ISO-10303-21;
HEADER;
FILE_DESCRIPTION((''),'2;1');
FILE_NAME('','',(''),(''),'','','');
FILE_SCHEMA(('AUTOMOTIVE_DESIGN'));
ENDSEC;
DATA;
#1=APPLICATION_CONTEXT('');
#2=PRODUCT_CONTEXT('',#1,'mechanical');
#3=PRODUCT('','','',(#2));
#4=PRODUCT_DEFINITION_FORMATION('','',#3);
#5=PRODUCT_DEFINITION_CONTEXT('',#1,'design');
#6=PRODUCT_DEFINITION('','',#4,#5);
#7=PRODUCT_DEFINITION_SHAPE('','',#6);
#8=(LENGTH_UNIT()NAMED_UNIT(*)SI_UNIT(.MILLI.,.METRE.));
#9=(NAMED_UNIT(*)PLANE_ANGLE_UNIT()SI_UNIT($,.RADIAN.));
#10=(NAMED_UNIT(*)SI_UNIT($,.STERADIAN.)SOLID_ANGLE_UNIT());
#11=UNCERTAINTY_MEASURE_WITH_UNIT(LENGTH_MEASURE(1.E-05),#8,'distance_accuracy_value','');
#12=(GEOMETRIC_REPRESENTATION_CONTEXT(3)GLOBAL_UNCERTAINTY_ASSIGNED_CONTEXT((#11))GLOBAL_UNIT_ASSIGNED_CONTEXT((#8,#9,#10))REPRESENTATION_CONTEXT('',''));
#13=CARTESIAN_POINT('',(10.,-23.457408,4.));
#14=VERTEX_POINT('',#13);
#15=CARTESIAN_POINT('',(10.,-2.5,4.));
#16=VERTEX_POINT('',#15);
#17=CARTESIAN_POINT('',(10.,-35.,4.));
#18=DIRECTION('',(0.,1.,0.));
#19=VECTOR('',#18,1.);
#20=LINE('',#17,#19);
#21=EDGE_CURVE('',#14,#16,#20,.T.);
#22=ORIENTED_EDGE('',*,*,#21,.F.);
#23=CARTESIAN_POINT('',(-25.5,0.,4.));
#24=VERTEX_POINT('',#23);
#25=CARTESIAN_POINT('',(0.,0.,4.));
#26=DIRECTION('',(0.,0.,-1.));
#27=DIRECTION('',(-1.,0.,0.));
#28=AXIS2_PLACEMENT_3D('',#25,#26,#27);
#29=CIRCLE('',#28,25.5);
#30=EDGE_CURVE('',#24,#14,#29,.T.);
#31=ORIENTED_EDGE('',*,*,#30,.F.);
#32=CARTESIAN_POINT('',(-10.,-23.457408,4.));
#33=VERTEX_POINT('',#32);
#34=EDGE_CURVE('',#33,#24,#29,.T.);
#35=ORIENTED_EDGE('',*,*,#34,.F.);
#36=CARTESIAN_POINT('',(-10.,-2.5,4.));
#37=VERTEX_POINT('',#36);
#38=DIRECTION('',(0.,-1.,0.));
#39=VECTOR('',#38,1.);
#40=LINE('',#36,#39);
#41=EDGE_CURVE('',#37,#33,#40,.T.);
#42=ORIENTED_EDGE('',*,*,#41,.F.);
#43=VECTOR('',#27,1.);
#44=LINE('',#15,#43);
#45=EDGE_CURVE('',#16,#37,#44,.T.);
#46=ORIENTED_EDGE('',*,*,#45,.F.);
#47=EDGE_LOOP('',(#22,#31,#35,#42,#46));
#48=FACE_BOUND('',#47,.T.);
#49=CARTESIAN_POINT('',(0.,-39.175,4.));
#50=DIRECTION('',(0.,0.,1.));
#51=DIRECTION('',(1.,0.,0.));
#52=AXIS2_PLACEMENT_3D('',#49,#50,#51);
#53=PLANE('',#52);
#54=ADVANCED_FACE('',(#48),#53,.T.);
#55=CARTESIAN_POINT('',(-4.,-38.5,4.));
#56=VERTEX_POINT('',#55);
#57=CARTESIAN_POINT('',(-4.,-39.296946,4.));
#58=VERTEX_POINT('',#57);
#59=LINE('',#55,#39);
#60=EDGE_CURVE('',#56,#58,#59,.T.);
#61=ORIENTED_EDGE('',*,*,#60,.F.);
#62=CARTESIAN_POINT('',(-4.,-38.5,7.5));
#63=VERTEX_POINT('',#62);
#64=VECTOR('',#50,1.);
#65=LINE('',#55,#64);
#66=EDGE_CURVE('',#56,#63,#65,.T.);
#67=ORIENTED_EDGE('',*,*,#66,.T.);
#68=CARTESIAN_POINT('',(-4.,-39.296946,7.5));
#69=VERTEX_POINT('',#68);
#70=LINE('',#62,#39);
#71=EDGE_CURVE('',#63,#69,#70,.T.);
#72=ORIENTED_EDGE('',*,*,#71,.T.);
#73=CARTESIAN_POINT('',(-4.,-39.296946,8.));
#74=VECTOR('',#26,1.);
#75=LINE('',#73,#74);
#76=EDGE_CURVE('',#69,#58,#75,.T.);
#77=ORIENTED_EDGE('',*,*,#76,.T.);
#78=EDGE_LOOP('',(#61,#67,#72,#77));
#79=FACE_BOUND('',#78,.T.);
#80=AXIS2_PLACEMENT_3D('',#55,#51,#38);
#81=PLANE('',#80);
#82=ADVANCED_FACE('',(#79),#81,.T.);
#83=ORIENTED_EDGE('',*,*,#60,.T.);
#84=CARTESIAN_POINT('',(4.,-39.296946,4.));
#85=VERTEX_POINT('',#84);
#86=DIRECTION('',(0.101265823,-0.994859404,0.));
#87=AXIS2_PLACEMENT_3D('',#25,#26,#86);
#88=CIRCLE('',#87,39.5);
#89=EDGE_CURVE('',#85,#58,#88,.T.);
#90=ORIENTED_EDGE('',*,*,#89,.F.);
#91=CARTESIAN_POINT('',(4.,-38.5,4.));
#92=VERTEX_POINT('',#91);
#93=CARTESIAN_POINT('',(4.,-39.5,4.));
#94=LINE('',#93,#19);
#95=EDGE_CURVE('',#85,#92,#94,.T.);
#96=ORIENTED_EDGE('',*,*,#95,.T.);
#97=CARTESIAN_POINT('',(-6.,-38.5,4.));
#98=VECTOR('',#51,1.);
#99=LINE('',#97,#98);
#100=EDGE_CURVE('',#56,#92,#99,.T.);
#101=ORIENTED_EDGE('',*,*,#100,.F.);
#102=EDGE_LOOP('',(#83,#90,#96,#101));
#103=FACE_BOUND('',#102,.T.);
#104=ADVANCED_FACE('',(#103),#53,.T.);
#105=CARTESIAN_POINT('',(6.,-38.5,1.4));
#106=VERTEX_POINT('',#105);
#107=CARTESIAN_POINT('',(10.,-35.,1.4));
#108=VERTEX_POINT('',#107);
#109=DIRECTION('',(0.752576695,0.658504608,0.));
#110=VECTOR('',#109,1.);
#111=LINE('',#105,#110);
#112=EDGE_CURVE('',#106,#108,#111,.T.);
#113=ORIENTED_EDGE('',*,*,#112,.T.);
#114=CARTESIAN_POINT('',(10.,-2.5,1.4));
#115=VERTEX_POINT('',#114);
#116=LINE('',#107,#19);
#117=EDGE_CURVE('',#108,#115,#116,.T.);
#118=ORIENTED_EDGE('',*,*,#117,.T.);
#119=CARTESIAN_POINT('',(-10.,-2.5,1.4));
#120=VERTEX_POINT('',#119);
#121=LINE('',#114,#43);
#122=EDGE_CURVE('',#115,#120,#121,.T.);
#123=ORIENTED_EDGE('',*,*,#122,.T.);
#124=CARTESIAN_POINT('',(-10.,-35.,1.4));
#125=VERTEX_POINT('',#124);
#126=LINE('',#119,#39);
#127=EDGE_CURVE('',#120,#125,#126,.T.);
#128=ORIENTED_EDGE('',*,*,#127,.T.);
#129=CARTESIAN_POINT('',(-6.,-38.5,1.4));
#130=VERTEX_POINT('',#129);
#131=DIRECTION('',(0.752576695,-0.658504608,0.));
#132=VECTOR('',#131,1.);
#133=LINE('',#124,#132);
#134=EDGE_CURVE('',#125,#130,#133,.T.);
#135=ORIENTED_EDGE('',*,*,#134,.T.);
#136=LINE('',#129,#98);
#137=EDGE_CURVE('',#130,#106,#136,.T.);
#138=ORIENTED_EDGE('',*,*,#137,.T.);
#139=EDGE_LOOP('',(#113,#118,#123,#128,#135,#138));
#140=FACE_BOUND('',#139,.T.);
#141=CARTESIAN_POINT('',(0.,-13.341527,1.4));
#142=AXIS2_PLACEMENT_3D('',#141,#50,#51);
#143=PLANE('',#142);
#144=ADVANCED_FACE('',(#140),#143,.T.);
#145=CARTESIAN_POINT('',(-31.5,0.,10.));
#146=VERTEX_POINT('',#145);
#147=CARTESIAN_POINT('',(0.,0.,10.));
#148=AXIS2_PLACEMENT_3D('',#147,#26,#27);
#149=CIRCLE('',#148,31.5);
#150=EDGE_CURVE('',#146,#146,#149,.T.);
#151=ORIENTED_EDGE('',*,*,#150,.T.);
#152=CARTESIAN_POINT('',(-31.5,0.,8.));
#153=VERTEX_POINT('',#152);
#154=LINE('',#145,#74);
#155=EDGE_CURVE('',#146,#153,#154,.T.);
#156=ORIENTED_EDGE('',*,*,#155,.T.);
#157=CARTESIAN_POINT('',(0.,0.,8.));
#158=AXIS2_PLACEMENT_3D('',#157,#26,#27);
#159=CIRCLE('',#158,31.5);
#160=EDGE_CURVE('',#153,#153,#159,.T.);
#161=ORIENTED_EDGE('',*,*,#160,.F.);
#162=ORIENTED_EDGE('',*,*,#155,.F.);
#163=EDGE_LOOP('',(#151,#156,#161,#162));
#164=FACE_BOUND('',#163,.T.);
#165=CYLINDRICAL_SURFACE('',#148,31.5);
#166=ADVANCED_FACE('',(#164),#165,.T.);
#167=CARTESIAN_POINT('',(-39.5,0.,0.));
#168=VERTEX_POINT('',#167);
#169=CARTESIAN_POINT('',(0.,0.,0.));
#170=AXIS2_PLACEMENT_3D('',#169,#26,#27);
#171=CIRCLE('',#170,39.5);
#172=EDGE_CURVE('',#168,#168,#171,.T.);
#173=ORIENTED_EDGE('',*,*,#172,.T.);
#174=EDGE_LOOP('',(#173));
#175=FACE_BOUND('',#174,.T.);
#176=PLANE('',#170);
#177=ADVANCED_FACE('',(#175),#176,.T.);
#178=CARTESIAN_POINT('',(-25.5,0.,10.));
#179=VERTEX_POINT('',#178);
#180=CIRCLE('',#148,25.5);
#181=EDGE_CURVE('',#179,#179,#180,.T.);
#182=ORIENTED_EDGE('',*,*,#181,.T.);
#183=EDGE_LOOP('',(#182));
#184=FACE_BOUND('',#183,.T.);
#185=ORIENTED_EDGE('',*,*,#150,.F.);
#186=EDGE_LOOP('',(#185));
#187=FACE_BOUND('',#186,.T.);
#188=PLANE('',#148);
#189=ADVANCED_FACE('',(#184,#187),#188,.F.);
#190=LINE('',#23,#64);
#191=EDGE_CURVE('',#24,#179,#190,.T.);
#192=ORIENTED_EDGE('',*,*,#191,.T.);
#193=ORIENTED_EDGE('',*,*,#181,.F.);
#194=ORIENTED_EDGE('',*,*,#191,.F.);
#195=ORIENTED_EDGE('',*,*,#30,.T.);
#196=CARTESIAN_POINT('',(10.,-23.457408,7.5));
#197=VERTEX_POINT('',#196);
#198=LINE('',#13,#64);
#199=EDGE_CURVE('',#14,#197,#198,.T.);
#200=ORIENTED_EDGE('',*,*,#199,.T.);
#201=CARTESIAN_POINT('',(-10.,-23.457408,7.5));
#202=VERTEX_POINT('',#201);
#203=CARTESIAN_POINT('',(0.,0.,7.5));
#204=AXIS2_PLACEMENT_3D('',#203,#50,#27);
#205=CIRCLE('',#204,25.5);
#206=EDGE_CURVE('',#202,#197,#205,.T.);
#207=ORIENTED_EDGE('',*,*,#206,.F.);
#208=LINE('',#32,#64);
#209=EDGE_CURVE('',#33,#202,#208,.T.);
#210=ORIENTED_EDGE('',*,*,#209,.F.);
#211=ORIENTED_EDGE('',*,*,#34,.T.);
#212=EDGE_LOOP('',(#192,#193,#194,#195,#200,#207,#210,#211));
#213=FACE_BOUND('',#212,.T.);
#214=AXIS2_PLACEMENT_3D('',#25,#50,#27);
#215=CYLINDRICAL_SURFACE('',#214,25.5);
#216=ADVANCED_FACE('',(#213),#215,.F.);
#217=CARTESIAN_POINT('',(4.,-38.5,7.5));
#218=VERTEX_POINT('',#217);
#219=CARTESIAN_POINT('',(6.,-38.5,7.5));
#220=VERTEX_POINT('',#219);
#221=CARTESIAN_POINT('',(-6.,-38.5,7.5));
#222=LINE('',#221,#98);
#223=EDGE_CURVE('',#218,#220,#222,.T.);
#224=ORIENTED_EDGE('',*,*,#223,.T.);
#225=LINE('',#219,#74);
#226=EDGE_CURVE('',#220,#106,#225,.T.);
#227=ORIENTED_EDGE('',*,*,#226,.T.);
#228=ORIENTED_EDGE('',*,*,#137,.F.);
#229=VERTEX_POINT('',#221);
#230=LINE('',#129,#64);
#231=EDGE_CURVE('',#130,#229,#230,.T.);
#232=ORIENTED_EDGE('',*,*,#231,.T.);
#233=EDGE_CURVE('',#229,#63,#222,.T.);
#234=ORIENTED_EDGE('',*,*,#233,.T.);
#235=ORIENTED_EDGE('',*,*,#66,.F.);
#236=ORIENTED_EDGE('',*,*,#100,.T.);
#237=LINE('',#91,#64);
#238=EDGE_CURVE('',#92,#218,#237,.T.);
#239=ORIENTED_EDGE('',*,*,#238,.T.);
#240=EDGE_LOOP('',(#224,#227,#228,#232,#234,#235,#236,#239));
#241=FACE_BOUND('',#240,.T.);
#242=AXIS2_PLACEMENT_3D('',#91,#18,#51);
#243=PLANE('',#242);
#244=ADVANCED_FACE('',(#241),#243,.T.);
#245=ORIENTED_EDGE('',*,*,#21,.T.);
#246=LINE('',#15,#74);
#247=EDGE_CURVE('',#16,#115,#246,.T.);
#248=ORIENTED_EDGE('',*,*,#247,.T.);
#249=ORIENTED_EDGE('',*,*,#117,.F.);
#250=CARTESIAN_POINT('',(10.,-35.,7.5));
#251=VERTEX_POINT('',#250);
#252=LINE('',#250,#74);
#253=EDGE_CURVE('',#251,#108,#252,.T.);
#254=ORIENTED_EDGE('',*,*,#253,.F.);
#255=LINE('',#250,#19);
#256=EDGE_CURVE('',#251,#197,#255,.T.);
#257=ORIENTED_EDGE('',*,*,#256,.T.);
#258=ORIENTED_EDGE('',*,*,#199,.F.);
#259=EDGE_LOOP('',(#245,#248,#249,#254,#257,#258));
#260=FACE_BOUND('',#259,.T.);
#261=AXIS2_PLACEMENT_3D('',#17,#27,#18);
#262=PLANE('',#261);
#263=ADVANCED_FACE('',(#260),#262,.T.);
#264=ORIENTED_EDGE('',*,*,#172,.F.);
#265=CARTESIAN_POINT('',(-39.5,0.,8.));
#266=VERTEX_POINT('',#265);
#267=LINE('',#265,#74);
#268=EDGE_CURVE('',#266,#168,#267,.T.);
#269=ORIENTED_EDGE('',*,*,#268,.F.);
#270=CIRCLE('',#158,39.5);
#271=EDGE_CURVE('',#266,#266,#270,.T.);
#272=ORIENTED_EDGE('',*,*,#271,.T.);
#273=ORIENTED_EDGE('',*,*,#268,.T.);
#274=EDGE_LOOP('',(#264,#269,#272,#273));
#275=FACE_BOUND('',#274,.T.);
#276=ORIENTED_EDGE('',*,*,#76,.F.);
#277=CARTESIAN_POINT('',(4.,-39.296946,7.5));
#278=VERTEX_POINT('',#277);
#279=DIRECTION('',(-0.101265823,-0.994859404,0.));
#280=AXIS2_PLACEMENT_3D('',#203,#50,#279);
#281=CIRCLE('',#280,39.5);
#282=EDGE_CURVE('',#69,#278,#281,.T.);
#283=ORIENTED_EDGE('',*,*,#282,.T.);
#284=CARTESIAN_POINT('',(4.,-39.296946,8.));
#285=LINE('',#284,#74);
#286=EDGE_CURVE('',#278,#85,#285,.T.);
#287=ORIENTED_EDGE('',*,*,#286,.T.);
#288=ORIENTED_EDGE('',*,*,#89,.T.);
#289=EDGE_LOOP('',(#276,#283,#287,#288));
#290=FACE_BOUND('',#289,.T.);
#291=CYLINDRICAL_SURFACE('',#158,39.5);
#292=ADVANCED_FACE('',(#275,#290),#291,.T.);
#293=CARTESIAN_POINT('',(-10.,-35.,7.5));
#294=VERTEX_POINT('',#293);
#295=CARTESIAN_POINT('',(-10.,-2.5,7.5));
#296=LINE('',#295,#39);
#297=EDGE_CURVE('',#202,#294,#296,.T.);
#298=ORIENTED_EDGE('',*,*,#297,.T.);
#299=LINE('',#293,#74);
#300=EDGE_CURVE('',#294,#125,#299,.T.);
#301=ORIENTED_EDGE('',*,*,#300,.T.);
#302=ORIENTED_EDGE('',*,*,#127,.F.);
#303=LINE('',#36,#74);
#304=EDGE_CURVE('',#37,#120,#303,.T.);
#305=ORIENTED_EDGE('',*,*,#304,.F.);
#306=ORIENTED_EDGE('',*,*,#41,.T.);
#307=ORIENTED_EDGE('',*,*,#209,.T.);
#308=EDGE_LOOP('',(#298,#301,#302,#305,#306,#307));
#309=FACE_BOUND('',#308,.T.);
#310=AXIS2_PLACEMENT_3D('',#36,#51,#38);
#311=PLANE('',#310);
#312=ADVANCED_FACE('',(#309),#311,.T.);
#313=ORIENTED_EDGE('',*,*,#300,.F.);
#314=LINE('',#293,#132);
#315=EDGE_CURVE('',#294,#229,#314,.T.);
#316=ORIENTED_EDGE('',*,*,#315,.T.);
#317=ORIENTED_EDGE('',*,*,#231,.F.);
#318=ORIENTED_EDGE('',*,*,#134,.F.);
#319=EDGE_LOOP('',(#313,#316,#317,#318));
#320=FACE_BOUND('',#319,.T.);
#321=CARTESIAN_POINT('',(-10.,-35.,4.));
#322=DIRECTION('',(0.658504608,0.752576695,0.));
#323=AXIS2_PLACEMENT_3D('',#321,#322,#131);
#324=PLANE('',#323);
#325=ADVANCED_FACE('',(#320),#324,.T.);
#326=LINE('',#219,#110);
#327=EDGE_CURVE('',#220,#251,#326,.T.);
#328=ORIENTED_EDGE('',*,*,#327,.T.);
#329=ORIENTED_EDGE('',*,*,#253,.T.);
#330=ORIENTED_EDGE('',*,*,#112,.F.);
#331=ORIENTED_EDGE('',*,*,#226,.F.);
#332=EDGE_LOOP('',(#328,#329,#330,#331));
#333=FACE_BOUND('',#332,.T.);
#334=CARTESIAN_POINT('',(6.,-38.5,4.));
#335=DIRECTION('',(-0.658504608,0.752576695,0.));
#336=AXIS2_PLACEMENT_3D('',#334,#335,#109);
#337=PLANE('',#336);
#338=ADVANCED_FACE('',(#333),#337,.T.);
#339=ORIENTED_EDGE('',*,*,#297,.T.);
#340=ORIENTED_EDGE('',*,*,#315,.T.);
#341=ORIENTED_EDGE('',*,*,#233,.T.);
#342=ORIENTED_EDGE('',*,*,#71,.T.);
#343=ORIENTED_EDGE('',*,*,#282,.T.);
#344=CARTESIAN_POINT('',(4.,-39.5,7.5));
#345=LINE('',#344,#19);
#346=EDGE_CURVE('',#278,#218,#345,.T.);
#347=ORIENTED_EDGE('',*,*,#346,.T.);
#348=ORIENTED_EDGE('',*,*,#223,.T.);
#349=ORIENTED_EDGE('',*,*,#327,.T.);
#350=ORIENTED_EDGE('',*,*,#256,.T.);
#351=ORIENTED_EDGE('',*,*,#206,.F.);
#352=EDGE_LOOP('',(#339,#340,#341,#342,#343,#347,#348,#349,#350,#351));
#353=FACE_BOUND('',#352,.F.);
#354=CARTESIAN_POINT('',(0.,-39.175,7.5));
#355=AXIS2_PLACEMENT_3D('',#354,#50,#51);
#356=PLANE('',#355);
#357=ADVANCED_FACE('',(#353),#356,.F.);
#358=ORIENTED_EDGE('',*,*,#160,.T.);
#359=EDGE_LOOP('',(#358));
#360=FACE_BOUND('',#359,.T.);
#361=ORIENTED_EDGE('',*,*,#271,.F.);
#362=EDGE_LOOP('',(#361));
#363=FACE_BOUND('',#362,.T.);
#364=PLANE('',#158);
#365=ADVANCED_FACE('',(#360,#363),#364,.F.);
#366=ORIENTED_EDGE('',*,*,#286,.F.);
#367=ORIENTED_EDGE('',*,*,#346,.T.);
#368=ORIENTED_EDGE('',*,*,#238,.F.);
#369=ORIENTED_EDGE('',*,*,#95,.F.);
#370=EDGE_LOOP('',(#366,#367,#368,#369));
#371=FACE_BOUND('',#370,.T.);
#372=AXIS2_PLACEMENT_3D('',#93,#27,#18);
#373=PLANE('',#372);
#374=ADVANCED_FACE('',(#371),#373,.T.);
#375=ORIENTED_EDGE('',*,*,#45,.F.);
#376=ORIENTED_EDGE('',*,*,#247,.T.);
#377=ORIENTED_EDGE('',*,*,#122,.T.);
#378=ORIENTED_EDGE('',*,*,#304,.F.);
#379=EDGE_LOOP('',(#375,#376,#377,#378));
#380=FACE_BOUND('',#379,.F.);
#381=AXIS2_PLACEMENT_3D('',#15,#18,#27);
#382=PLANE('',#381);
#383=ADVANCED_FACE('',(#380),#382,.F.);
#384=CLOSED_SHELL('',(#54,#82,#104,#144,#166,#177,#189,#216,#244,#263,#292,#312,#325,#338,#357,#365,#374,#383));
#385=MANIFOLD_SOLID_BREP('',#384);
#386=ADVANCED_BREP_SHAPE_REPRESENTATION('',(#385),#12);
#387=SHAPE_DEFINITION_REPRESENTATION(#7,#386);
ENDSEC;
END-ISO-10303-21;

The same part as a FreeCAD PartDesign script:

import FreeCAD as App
import Part
import Sketcher


def add_polygon(sketch, points):
    """Adds a closed chain of lines whose ends are joined by coincident constraints."""
    first, n = sketch.GeometryCount, len(points)
    for a, b in zip(points, points[1:] + points[:1]):
        sketch.addGeometry(Part.LineSegment(App.Vector(*a, 0), App.Vector(*b, 0)), False)
    for i in range(n):
        sketch.addConstraint(Sketcher.Constraint("Coincident", first + i, 2, first + (i + 1) % n, 1))

doc = App.newDocument("Part")
params = doc.addObject("Spreadsheet::Sheet", "Params")
for row, (alias, value) in enumerate([
    ("sketch1_width", "6 mm"),
    ("sketch1_width2", "8 mm"),
    ("sketch1_height", "4 mm"),
    ("sketch1_width3", "39.5 mm"),
    ("revolution_angle", "360 deg"),
    ("sketch2_width", "8 mm"),
    ("sketch2_width2", "2 mm"),
    ("sketch2_width3", "20 mm"),
    ("sketch2_height", "1 mm"),
    ("sketch2_height2", "32.5 mm"),
    ("pocket1_length", "3.5 mm"),
    ("sketch3_width", "20 mm"),
    ("sketch3_width2", "12 mm"),
    ("sketch3_height", "32.5 mm"),
    ("pocket2_length", "2.6 mm"),
], start=1):
    params.set(f"A{row}", alias)
    params.set(f"B{row}", "=" + value)
    params.setAlias(f"B{row}", alias)

body = doc.addObject("PartDesign::Body", "Body")

# Sketch on XZ plane
sketch1 = doc.addObject("Sketcher::SketchObject", "Sketch")
body.addObject(sketch1)
sketch1.AttachmentSupport = (doc.XZ_Plane, [""])
sketch1.MapMode = "FlatFace"
add_polygon(sketch1, [(-39.5, 8), (-39.5, 0), (0, 0), (0, 4), (-25.5, 4), (-25.5, 10), (-31.5, 10), (-31.5, 8)])  # lines 0-7
sketch1.addConstraint([
    Sketcher.Constraint("Vertical", 0),
    Sketcher.Constraint("Horizontal", 1),
    Sketcher.Constraint("Vertical", 2),
    Sketcher.Constraint("Horizontal", 3),
    Sketcher.Constraint("Vertical", 4),
    Sketcher.Constraint("Horizontal", 5),
    Sketcher.Constraint("Vertical", 6),
    Sketcher.Constraint("Horizontal", 7),
    Sketcher.Constraint("Coincident", 1, 2, -1, 1),
    Sketcher.Constraint("Equal", 7, 0),
    Sketcher.Constraint("Equal", 5, 4),
    Sketcher.Constraint("DistanceX", 5, 2, 5, 1, 6.0),
    Sketcher.Constraint("DistanceX", 7, 2, 7, 1, 8.0),
    Sketcher.Constraint("DistanceY", 2, 1, 2, 2, 4.0),
    Sketcher.Constraint("DistanceX", 1, 1, 1, 2, 39.5),
])
sketch1.setExpression("Constraints[19]", "Params.sketch1_width")
sketch1.setExpression("Constraints[20]", "Params.sketch1_width2")
sketch1.setExpression("Constraints[21]", "Params.sketch1_height")
sketch1.setExpression("Constraints[22]", "Params.sketch1_width3")
revolution = doc.addObject("PartDesign::Revolution", "Revolution")
body.addObject(revolution)
revolution.Profile = sketch1
revolution.ReferenceAxis = (sketch1, ["V_Axis"])
revolution.setExpression("Angle", "Params.revolution_angle")

# Sketch on XY plane
sketch2 = doc.addObject("Sketcher::SketchObject", "Sketch001")
body.addObject(sketch2)
sketch2.AttachmentSupport = (doc.XY_Plane, [""])
sketch2.MapMode = "FlatFace"
sketch2.AttachmentOffset = App.Placement(App.Vector(0, 0, 4), App.Rotation())
add_polygon(sketch2, [(-4, -39.5), (4, -39.5), (4, -38.5), (6, -38.5), (10, -35), (10, -2.5), (-10, -2.5), (-10, -35), (-6, -38.5), (-4, -38.5)])  # lines 0-9
sketch2.addConstraint([
    Sketcher.Constraint("Horizontal", 0),
    Sketcher.Constraint("Vertical", 1),
    Sketcher.Constraint("Horizontal", 2),
    Sketcher.Constraint("Vertical", 4),
    Sketcher.Constraint("Horizontal", 5),
    Sketcher.Constraint("Vertical", 6),
    Sketcher.Constraint("Horizontal", 8),
    Sketcher.Constraint("Vertical", 9),
    Sketcher.Constraint("Symmetric", 3, 2, 6, 2, -2),
    Sketcher.Constraint("Symmetric", 2, 2, 7, 2, -2),
    Sketcher.Constraint("Equal", 2, 8),
    Sketcher.Constraint("DistanceX", 0, 1, 0, 2, 8.0),
    Sketcher.Constraint("DistanceX", 2, 1, 2, 2, 2.0),
    Sketcher.Constraint("DistanceX", 5, 2, 5, 1, 20.0),
    Sketcher.Constraint("DistanceY", 1, 1, 1, 2, 1.0),
    Sketcher.Constraint("DistanceY", 4, 1, 4, 2, 32.5),
    Sketcher.Constraint("DistanceY", 3, 2, -1, 1, 35.0),
    Sketcher.Constraint("DistanceY", 2, 2, 4, 2, 36.0),
])
sketch2.setExpression("Constraints[21]", "Params.sketch2_width")
sketch2.setExpression("Constraints[22]", "Params.sketch2_width2")
sketch2.setExpression("Constraints[23]", "Params.sketch2_width3")
sketch2.setExpression("Constraints[24]", "Params.sketch2_height")
sketch2.setExpression("Constraints[25]", "Params.sketch2_height2")
pocket1 = doc.addObject("PartDesign::Pocket", "Pocket")
body.addObject(pocket1)
pocket1.Profile = sketch2
pocket1.setExpression("Length", "Params.pocket1_length")
pocket1.Reversed = True

# Sketch on XY plane
sketch3 = doc.addObject("Sketcher::SketchObject", "Sketch002")
body.addObject(sketch3)
sketch3.AttachmentSupport = (doc.XY_Plane, [""])
sketch3.MapMode = "FlatFace"
sketch3.AttachmentOffset = App.Placement(App.Vector(0, 0, 4), App.Rotation())
add_polygon(sketch3, [(10, -2), (-10, -2), (-10, -35), (-6, -38), (6, -38), (10, -35)])  # lines 0-5
sketch3.addConstraint([
    Sketcher.Constraint("Horizontal", 0),
    Sketcher.Constraint("Vertical", 1),
    Sketcher.Constraint("Horizontal", 3),
    Sketcher.Constraint("Vertical", 5),
    Sketcher.Constraint("Symmetric", 1, 2, 4, 2, -2),
    Sketcher.Constraint("Equal", 2, 4),
    Sketcher.Constraint("DistanceX", 0, 2, 0, 1, 20.0),
    Sketcher.Constraint("DistanceX", 3, 1, 3, 2, 12.0),
    Sketcher.Constraint("DistanceY", 1, 2, 1, 1, 32.5),
    Sketcher.Constraint("DistanceY", 1, 2, -1, 1, 35.0),
    Sketcher.Constraint("DistanceY", 2, 2, 0, 2, 36.0),
])
sketch3.setExpression("Constraints[12]", "Params.sketch3_width")
sketch3.setExpression("Constraints[13]", "Params.sketch3_width2")
sketch3.setExpression("Constraints[14]", "Params.sketch3_height")
pocket2 = doc.addObject("PartDesign::Pocket", "Pocket001")
body.addObject(pocket2)
pocket2.Profile = sketch3
pocket2.setExpression("Length", "Params.pocket2_length")

doc.recompute()
